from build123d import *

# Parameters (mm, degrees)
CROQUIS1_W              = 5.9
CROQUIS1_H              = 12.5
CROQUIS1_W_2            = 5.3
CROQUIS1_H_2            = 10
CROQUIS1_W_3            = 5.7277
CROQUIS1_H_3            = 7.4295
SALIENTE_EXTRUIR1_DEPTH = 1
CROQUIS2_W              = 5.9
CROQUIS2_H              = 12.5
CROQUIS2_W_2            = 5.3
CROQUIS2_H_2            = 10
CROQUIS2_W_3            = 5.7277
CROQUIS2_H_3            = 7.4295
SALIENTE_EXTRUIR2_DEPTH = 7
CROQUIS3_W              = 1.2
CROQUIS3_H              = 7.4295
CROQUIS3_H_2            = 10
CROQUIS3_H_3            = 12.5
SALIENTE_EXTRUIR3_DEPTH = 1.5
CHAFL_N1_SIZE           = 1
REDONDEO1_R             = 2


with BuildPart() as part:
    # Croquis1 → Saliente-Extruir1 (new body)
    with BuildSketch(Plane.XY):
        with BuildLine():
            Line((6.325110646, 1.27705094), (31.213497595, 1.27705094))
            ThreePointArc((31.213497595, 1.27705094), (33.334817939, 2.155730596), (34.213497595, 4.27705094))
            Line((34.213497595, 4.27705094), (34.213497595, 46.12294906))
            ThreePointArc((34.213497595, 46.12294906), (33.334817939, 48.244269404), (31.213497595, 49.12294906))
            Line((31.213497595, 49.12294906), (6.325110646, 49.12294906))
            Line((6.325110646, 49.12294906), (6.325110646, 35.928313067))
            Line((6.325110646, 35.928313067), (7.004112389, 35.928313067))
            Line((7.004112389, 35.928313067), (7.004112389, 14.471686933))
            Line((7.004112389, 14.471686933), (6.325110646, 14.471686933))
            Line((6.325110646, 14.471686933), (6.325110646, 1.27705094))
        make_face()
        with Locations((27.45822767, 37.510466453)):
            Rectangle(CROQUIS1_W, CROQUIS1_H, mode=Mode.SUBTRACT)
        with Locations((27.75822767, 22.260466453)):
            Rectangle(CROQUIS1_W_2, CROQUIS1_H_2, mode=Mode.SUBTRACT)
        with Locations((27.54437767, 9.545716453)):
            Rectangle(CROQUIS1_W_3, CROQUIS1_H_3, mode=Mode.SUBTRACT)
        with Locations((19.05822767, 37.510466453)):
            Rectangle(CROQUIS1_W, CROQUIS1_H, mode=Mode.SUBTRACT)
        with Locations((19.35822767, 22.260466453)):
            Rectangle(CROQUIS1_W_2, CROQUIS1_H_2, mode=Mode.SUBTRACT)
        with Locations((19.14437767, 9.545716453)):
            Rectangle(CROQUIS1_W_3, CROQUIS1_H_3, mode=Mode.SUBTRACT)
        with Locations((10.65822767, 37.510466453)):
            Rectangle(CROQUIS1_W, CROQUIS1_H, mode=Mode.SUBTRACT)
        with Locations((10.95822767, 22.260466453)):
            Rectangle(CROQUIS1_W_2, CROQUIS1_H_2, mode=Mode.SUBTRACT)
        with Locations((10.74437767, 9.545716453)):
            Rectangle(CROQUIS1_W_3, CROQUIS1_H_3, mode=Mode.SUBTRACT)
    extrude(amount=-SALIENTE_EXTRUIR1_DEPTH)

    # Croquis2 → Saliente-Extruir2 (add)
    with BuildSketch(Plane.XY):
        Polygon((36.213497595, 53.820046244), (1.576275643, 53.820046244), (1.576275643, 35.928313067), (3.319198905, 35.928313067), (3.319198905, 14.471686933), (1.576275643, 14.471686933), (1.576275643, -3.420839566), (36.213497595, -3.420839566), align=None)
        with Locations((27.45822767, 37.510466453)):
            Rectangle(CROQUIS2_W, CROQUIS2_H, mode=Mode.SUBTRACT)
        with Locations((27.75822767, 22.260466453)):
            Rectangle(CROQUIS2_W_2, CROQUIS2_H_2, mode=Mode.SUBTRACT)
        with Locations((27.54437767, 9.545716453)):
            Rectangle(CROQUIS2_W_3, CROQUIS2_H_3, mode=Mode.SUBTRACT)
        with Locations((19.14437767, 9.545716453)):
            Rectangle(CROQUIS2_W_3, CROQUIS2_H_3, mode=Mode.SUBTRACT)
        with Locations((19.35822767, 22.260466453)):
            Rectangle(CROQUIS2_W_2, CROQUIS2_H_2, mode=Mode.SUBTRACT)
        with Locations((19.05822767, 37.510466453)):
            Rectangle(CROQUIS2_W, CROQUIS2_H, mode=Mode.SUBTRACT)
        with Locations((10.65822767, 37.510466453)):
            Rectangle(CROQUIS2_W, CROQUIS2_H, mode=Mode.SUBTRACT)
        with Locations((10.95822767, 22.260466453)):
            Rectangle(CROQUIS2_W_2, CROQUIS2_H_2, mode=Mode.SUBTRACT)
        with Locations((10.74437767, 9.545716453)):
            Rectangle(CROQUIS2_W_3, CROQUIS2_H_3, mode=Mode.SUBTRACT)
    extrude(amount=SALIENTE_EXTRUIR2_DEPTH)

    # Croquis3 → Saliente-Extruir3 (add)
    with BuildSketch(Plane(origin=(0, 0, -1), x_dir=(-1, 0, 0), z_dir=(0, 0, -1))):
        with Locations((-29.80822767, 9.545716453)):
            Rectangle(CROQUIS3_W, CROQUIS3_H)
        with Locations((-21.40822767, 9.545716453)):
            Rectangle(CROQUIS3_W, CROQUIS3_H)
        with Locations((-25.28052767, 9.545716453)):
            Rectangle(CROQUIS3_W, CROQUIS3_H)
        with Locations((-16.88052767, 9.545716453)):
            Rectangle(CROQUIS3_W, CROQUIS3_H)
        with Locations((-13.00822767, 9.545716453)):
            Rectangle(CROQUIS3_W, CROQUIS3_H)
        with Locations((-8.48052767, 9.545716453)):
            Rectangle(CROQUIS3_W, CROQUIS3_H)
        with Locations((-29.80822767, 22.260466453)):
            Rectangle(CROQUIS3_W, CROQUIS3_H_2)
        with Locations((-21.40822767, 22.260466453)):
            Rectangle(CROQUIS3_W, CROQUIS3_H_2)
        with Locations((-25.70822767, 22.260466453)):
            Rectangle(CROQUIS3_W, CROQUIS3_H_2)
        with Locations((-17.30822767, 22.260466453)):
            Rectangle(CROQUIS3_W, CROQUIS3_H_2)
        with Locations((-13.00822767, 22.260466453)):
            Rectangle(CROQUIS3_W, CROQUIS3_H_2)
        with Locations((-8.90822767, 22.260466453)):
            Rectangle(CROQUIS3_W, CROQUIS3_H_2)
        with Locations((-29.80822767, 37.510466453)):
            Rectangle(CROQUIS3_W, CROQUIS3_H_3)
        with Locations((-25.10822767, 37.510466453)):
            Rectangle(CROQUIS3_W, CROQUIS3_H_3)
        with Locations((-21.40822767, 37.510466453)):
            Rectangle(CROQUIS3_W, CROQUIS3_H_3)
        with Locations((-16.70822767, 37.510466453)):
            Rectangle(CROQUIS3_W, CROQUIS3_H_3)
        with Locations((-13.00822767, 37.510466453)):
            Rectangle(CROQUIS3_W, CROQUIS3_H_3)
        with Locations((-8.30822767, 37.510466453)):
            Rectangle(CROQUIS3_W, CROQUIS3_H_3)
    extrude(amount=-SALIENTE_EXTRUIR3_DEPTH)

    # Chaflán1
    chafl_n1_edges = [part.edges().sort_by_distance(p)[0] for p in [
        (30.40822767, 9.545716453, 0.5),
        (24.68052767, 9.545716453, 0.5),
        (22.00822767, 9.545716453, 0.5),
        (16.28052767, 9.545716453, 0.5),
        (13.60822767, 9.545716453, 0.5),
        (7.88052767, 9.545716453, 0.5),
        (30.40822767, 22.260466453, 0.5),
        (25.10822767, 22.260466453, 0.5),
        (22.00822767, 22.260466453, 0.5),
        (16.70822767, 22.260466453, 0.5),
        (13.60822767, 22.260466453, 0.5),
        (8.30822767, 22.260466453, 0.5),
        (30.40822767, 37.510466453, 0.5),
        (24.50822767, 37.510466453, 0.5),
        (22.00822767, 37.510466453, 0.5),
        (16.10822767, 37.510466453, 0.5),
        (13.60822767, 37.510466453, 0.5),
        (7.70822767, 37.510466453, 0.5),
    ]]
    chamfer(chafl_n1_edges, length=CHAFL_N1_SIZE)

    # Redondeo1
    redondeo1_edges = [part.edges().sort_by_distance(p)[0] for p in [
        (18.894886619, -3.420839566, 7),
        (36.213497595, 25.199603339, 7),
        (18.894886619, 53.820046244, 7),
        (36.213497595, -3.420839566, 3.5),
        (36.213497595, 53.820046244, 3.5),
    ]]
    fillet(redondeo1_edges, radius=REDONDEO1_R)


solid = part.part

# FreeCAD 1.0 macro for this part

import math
import FreeCAD as App
import Part
import Sketcher
Q = App.Units.Quantity


def edges_at(feature, points):
    """Names of the edges that pass closest to the given points."""
    edges = feature.Shape.Edges
    near = lambda p: min(range(len(edges)), key=lambda i: edges[i].distToShape(Part.Vertex(*p))[0])
    return sorted({f"Edge{near(p) + 1}" for p in points})


def add_polygon(sketch, points):
    """Adds a closed chain of lines whose ends are joined by coincident constraints."""
    first, n = sketch.GeometryCount, len(points)
    for a, b in zip(points, points[1:] + points[:1]):
        sketch.addGeometry(Part.LineSegment(App.Vector(*a, 0), App.Vector(*b, 0)), False)
    for i in range(n):
        sketch.addConstraint(Sketcher.Constraint("Coincident", first + i, 2, first + (i + 1) % n, 1))

doc = App.newDocument("Part")
params = doc.addObject("Spreadsheet::Sheet", "Params")
for row, (alias, value) in enumerate([
    ("sketch1_radius", "3 mm"),
    ("sketch1_height", "10 mm"),
    ("sketch1_width", "5.3 mm"),
    ("sketch1_width2", "5.9 mm"),
    ("sketch1_height2", "12.5 mm"),
    ("pad1_length", "1 mm"),
    ("sketch2_height", "10 mm"),
    ("sketch2_width", "5.3 mm"),
    ("sketch2_width2", "5.9 mm"),
    ("sketch2_height2", "12.5 mm"),
    ("pad2_length", "7 mm"),
    ("sketch3_height", "10 mm"),
    ("sketch3_width", "1.2 mm"),
    ("sketch3_height2", "12.5 mm"),
    ("pad3_length", "1.5 mm"),
    ("chamfer_size", "1 mm"),
    ("fillet_radius", "2 mm"),
], start=1):
    params.set(f"A{row}", alias)
    params.set(f"B{row}", "=" + value)
    params.setAlias(f"B{row}", alias)

body = doc.addObject("PartDesign::Body", "Body")

# Sketch on XY plane
sketch1 = doc.addObject("Sketcher::SketchObject", "Sketch")
body.addObject(sketch1)
sketch1.AttachmentSupport = (doc.XY_Plane, [""])
sketch1.MapMode = "FlatFace"
sketch1.addGeometry(Part.LineSegment(App.Vector(6.325111, 1.277051, 0), App.Vector(31.213498, 1.277051, 0)), False)  # 0
sketch1.addGeometry(Part.ArcOfCircle(Part.Circle(App.Vector(31.213498, 4.277051, 0), App.Vector(0, 0, 1), 3), math.radians(-90), math.radians(0)), False)  # 1
sketch1.addGeometry(Part.LineSegment(App.Vector(34.213498, 4.277051, 0), App.Vector(34.213498, 46.122949, 0)), False)  # 2
sketch1.addGeometry(Part.ArcOfCircle(Part.Circle(App.Vector(31.213498, 46.122949, 0), App.Vector(0, 0, 1), 3), math.radians(0), math.radians(90)), False)  # 3
sketch1.addGeometry(Part.LineSegment(App.Vector(31.213498, 49.122949, 0), App.Vector(6.325111, 49.122949, 0)), False)  # 4
sketch1.addGeometry(Part.LineSegment(App.Vector(6.325111, 49.122949, 0), App.Vector(6.325111, 35.928313, 0)), False)  # 5
sketch1.addGeometry(Part.LineSegment(App.Vector(6.325111, 35.928313, 0), App.Vector(7.004112, 35.928313, 0)), False)  # 6
sketch1.addGeometry(Part.LineSegment(App.Vector(7.004112, 35.928313, 0), App.Vector(7.004112, 14.471687, 0)), False)  # 7
sketch1.addGeometry(Part.LineSegment(App.Vector(7.004112, 14.471687, 0), App.Vector(6.325111, 14.471687, 0)), False)  # 8
sketch1.addGeometry(Part.LineSegment(App.Vector(6.325111, 14.471687, 0), App.Vector(6.325111, 1.277051, 0)), False)  # 9
add_polygon(sketch1, [(13.608228, 5.830966), (7.880528, 5.830966), (7.880528, 13.260466), (13.608228, 13.260466)])  # lines 10-13
add_polygon(sketch1, [(13.608228, 17.260466), (8.308228, 17.260466), (8.308228, 27.260466), (13.608228, 27.260466)])  # lines 14-17
add_polygon(sketch1, [(22.008228, 5.830966), (16.280528, 5.830966), (16.280528, 13.260466), (22.008228, 13.260466)])  # lines 18-21
add_polygon(sketch1, [(30.408228, 5.830966), (24.680528, 5.830966), (24.680528, 13.260466), (30.408228, 13.260466)])  # lines 22-25
add_polygon(sketch1, [(22.008228, 17.260466), (16.708228, 17.260466), (16.708228, 27.260466), (22.008228, 27.260466)])  # lines 26-29
add_polygon(sketch1, [(30.408228, 17.260466), (25.108228, 17.260466), (25.108228, 27.260466), (30.408228, 27.260466)])  # lines 30-33
add_polygon(sketch1, [(13.608228, 31.260466), (7.708228, 31.260466), (7.708228, 43.760466), (13.608228, 43.760466)])  # lines 34-37
add_polygon(sketch1, [(22.008228, 31.260466), (16.108228, 31.260466), (16.108228, 43.760466), (22.008228, 43.760466)])  # lines 38-41
add_polygon(sketch1, [(30.408228, 31.260466), (24.508228, 31.260466), (24.508228, 43.760466), (30.408228, 43.760466)])  # lines 42-45
sketch1.addConstraint([
    Sketcher.Constraint("Tangent", 0, 2, 1, 1),
    Sketcher.Constraint("Tangent", 1, 2, 2, 1),
    Sketcher.Constraint("Tangent", 2, 2, 3, 1),
    Sketcher.Constraint("Tangent", 3, 2, 4, 1),
    Sketcher.Constraint("Coincident", 4, 2, 5, 1),
    Sketcher.Constraint("Coincident", 5, 2, 6, 1),
    Sketcher.Constraint("Coincident", 6, 2, 7, 1),
    Sketcher.Constraint("Coincident", 7, 2, 8, 1),
    Sketcher.Constraint("Coincident", 8, 2, 9, 1),
    Sketcher.Constraint("Coincident", 9, 2, 0, 1),
    Sketcher.Constraint("Horizontal", 0),
    Sketcher.Constraint("Vertical", 2),
    Sketcher.Constraint("Horizontal", 4),
    Sketcher.Constraint("Vertical", 5),
    Sketcher.Constraint("Horizontal", 6),
    Sketcher.Constraint("Vertical", 7),
    Sketcher.Constraint("Horizontal", 8),
    Sketcher.Constraint("Vertical", 9),
    Sketcher.Constraint("Horizontal", 10),
    Sketcher.Constraint("Vertical", 11),
    Sketcher.Constraint("Horizontal", 12),
    Sketcher.Constraint("Vertical", 13),
    Sketcher.Constraint("Horizontal", 14),
    Sketcher.Constraint("Vertical", 15),
    Sketcher.Constraint("Horizontal", 16),
    Sketcher.Constraint("Vertical", 17),
    Sketcher.Constraint("Horizontal", 18),
    Sketcher.Constraint("Vertical", 19),
    Sketcher.Constraint("Horizontal", 20),
    Sketcher.Constraint("Vertical", 21),
    Sketcher.Constraint("Horizontal", 22),
    Sketcher.Constraint("Vertical", 23),
    Sketcher.Constraint("Horizontal", 24),
    Sketcher.Constraint("Vertical", 25),
    Sketcher.Constraint("Horizontal", 26),
    Sketcher.Constraint("Vertical", 27),
    Sketcher.Constraint("Horizontal", 28),
    Sketcher.Constraint("Vertical", 29),
    Sketcher.Constraint("Horizontal", 30),
    Sketcher.Constraint("Vertical", 31),
    Sketcher.Constraint("Horizontal", 32),
    Sketcher.Constraint("Vertical", 33),
    Sketcher.Constraint("Horizontal", 34),
    Sketcher.Constraint("Vertical", 35),
    Sketcher.Constraint("Horizontal", 36),
    Sketcher.Constraint("Vertical", 37),
    Sketcher.Constraint("Horizontal", 38),
    Sketcher.Constraint("Vertical", 39),
    Sketcher.Constraint("Horizontal", 40),
    Sketcher.Constraint("Vertical", 41),
    Sketcher.Constraint("Horizontal", 42),
    Sketcher.Constraint("Vertical", 43),
    Sketcher.Constraint("Horizontal", 44),
    Sketcher.Constraint("Vertical", 45),
    Sketcher.Constraint("Equal", 1, 3),
    Sketcher.Constraint("Horizontal", 13, 2, 18, 2),
    Sketcher.Constraint("Horizontal", 12, 2, 19, 2),
    Sketcher.Constraint("Horizontal", 21, 2, 22, 2),
    Sketcher.Constraint("Horizontal", 20, 2, 23, 2),
    Sketcher.Constraint("Horizontal", 17, 2, 26, 2),
    Sketcher.Constraint("Horizontal", 16, 2, 27, 2),
    Sketcher.Constraint("Horizontal", 29, 2, 30, 2),
    Sketcher.Constraint("Horizontal", 28, 2, 31, 2),
    Sketcher.Constraint("Horizontal", 37, 2, 38, 2),
    Sketcher.Constraint("Horizontal", 36, 2, 39, 2),
    Sketcher.Constraint("Horizontal", 41, 2, 42, 2),
    Sketcher.Constraint("Horizontal", 40, 2, 43, 2),
    Sketcher.Constraint("Vertical", 5, 2, 8, 2),
    Sketcher.Constraint("Vertical", 13, 2, 16, 2),
    Sketcher.Constraint("Vertical", 21, 2, 28, 2),
    Sketcher.Constraint("Vertical", 25, 2, 32, 2),
    Sketcher.Constraint("Vertical", 17, 2, 36, 2),
    Sketcher.Constraint("Vertical", 29, 2, 40, 2),
    Sketcher.Constraint("Vertical", 33, 2, 44, 2),
    Sketcher.Constraint("Equal", 12, 18),
    Sketcher.Constraint("Equal", 20, 22),
    Sketcher.Constraint("Equal", 16, 26),
    Sketcher.Constraint("Equal", 28, 30),
    Sketcher.Constraint("Equal", 36, 38),
    Sketcher.Constraint("Equal", 40, 42),
    Sketcher.Constraint("Equal", 5, 9),
    Sketcher.Constraint("Radius", 1, Q("3 mm")),
    Sketcher.Constraint("DistanceY", 15, 1, 15, 2, Q("10 mm")),
    Sketcher.Constraint("DistanceX", 14, 2, 14, 1, Q("5.3 mm")),
    Sketcher.Constraint("DistanceX", 34, 2, 34, 1, Q("5.9 mm")),
    Sketcher.Constraint("DistanceY", 35, 1, 35, 2, Q("12.5 mm")),
    Sketcher.Constraint("DistanceY", 11, 2, 14, 2, Q("4 mm")),
    Sketcher.Constraint("DistanceY", 15, 2, 34, 2, Q("4 mm")),
    Sketcher.Constraint("DistanceX", 34, 2, 27, 2, Q("9 mm")),
    Sketcher.Constraint("DistanceX", 18, 2, 22, 2, Q("8.4 mm")),
    Sketcher.Constraint("DistanceX", 6, 1, 6, 2, Q("0.679002 mm")),
    Sketcher.Constraint("DistanceX", 10, 2, 10, 1, Q("5.7277 mm")),
    Sketcher.Constraint("DistanceY", 2, 1, 2, 2, Q("41.845898 mm")),
    Sketcher.Constraint("DistanceY", 11, 1, 11, 2, Q("7.4295 mm")),
    Sketcher.Constraint("DistanceX", 0, 1, 0, 2, Q("24.888387 mm")),
    Sketcher.Constraint("DistanceY", 5, 2, 5, 1, Q("13.194636 mm")),
    Sketcher.Constraint("DistanceY", -1, 1, 1, 3, Q("4.277051 mm")),
    Sketcher.Constraint("DistanceX", -1, 1, 4, 2, Q("6.325111 mm")),
    Sketcher.Constraint("DistanceY", 10, 2, 7, 2, Q("8.64072 mm")),
    Sketcher.Constraint("DistanceX", 10, 2, 1, 3, Q("23.33297 mm")),
])
sketch1.setExpression("Constraints[117]", "Params.sketch1_radius")
sketch1.setExpression("Constraints[118]", "Params.sketch1_height")
sketch1.setExpression("Constraints[119]", "Params.sketch1_width")
sketch1.setExpression("Constraints[120]", "Params.sketch1_width2")
sketch1.setExpression("Constraints[121]", "Params.sketch1_height2")
pad1 = doc.addObject("PartDesign::Pad", "Pad")
body.addObject(pad1)
pad1.Profile = sketch1
pad1.setExpression("Length", "Params.pad1_length")
pad1.Reversed = True

# Sketch on XY plane
sketch2 = doc.addObject("Sketcher::SketchObject", "Sketch001")
body.addObject(sketch2)
sketch2.AttachmentSupport = (doc.XY_Plane, [""])
sketch2.MapMode = "FlatFace"
add_polygon(sketch2, [(36.213498, 53.820046), (1.576276, 53.820046), (1.576276, 35.928313), (3.319199, 35.928313), (3.319199, 14.471687), (1.576276, 14.471687), (1.576276, -3.42084), (36.213498, -3.42084)])  # lines 0-7
add_polygon(sketch2, [(13.608228, 5.830966), (7.880528, 5.830966), (7.880528, 13.260466), (13.608228, 13.260466)])  # lines 8-11
add_polygon(sketch2, [(13.608228, 17.260466), (8.308228, 17.260466), (8.308228, 27.260466), (13.608228, 27.260466)])  # lines 12-15
add_polygon(sketch2, [(22.008228, 5.830966), (16.280528, 5.830966), (16.280528, 13.260466), (22.008228, 13.260466)])  # lines 16-19
add_polygon(sketch2, [(30.408228, 5.830966), (24.680528, 5.830966), (24.680528, 13.260466), (30.408228, 13.260466)])  # lines 20-23
add_polygon(sketch2, [(22.008228, 17.260466), (16.708228, 17.260466), (16.708228, 27.260466), (22.008228, 27.260466)])  # lines 24-27
add_polygon(sketch2, [(30.408228, 17.260466), (25.108228, 17.260466), (25.108228, 27.260466), (30.408228, 27.260466)])  # lines 28-31
add_polygon(sketch2, [(13.608228, 31.260466), (7.708228, 31.260466), (7.708228, 43.760466), (13.608228, 43.760466)])  # lines 32-35
add_polygon(sketch2, [(22.008228, 31.260466), (16.108228, 31.260466), (16.108228, 43.760466), (22.008228, 43.760466)])  # lines 36-39
add_polygon(sketch2, [(30.408228, 31.260466), (24.508228, 31.260466), (24.508228, 43.760466), (30.408228, 43.760466)])  # lines 40-43
sketch2.addConstraint([
    Sketcher.Constraint("Horizontal", 0),
    Sketcher.Constraint("Vertical", 1),
    Sketcher.Constraint("Horizontal", 2),
    Sketcher.Constraint("Vertical", 3),
    Sketcher.Constraint("Horizontal", 4),
    Sketcher.Constraint("Vertical", 5),
    Sketcher.Constraint("Horizontal", 6),
    Sketcher.Constraint("Vertical", 7),
    Sketcher.Constraint("Horizontal", 8),
    Sketcher.Constraint("Vertical", 9),
    Sketcher.Constraint("Horizontal", 10),
    Sketcher.Constraint("Vertical", 11),
    Sketcher.Constraint("Horizontal", 12),
    Sketcher.Constraint("Vertical", 13),
    Sketcher.Constraint("Horizontal", 14),
    Sketcher.Constraint("Vertical", 15),
    Sketcher.Constraint("Horizontal", 16),
    Sketcher.Constraint("Vertical", 17),
    Sketcher.Constraint("Horizontal", 18),
    Sketcher.Constraint("Vertical", 19),
    Sketcher.Constraint("Horizontal", 20),
    Sketcher.Constraint("Vertical", 21),
    Sketcher.Constraint("Horizontal", 22),
    Sketcher.Constraint("Vertical", 23),
    Sketcher.Constraint("Horizontal", 24),
    Sketcher.Constraint("Vertical", 25),
    Sketcher.Constraint("Horizontal", 26),
    Sketcher.Constraint("Vertical", 27),
    Sketcher.Constraint("Horizontal", 28),
    Sketcher.Constraint("Vertical", 29),
    Sketcher.Constraint("Horizontal", 30),
    Sketcher.Constraint("Vertical", 31),
    Sketcher.Constraint("Horizontal", 32),
    Sketcher.Constraint("Vertical", 33),
    Sketcher.Constraint("Horizontal", 34),
    Sketcher.Constraint("Vertical", 35),
    Sketcher.Constraint("Horizontal", 36),
    Sketcher.Constraint("Vertical", 37),
    Sketcher.Constraint("Horizontal", 38),
    Sketcher.Constraint("Vertical", 39),
    Sketcher.Constraint("Horizontal", 40),
    Sketcher.Constraint("Vertical", 41),
    Sketcher.Constraint("Horizontal", 42),
    Sketcher.Constraint("Vertical", 43),
    Sketcher.Constraint("Horizontal", 11, 2, 16, 2),
    Sketcher.Constraint("Horizontal", 10, 2, 17, 2),
    Sketcher.Constraint("Horizontal", 19, 2, 20, 2),
    Sketcher.Constraint("Horizontal", 18, 2, 21, 2),
    Sketcher.Constraint("Horizontal", 15, 2, 24, 2),
    Sketcher.Constraint("Horizontal", 14, 2, 25, 2),
    Sketcher.Constraint("Horizontal", 27, 2, 28, 2),
    Sketcher.Constraint("Horizontal", 26, 2, 29, 2),
    Sketcher.Constraint("Horizontal", 35, 2, 36, 2),
    Sketcher.Constraint("Horizontal", 34, 2, 37, 2),
    Sketcher.Constraint("Horizontal", 39, 2, 40, 2),
    Sketcher.Constraint("Horizontal", 38, 2, 41, 2),
    Sketcher.Constraint("Vertical", 1, 2, 4, 2),
    Sketcher.Constraint("Vertical", 11, 2, 14, 2),
    Sketcher.Constraint("Vertical", 19, 2, 26, 2),
    Sketcher.Constraint("Vertical", 23, 2, 30, 2),
    Sketcher.Constraint("Vertical", 15, 2, 34, 2),
    Sketcher.Constraint("Vertical", 27, 2, 38, 2),
    Sketcher.Constraint("Vertical", 31, 2, 42, 2),
    Sketcher.Constraint("Equal", 10, 16),
    Sketcher.Constraint("Equal", 18, 20),
    Sketcher.Constraint("Equal", 14, 24),
    Sketcher.Constraint("Equal", 26, 28),
    Sketcher.Constraint("Equal", 34, 36),
    Sketcher.Constraint("Equal", 38, 40),
    Sketcher.Constraint("DistanceY", 13, 1, 13, 2, Q("10 mm")),
    Sketcher.Constraint("DistanceX", 12, 2, 12, 1, Q("5.3 mm")),
    Sketcher.Constraint("DistanceX", 32, 2, 32, 1, Q("5.9 mm")),
    Sketcher.Constraint("DistanceY", 33, 1, 33, 2, Q("12.5 mm")),
    Sketcher.Constraint("DistanceY", 9, 2, 12, 2, Q("4 mm")),
    Sketcher.Constraint("DistanceY", 13, 2, 32, 2, Q("4 mm")),
    Sketcher.Constraint("DistanceX", 32, 2, 25, 2, Q("9 mm")),
    Sketcher.Constraint("DistanceX", 16, 2, 20, 2, Q("8.4 mm")),
    Sketcher.Constraint("DistanceX", 8, 2, 8, 1, Q("5.7277 mm")),
    Sketcher.Constraint("DistanceY", 9, 1, 9, 2, Q("7.4295 mm")),
    Sketcher.Constraint("DistanceX", 0, 2, 0, 1, Q("34.637222 mm")),
    Sketcher.Constraint("DistanceX", -1, 1, 2, 2, Q("3.319199 mm")),
    Sketcher.Constraint("DistanceX", 3, 2, 6, 2, Q("32.894299 mm")),
    Sketcher.Constraint("DistanceY", 1, 2, 1, 1, Q("17.891733 mm")),
    Sketcher.Constraint("DistanceY", 3, 2, 3, 1, Q("21.456626 mm")),
    Sketcher.Constraint("DistanceY", 5, 2, 5, 1, Q("17.892526 mm")),
    Sketcher.Constraint("DistanceY", 5, 2, -1, 1, Q("3.42084 mm")),
    Sketcher.Constraint("DistanceX", 3, 2, 8, 2, Q("4.561329 mm")),
    Sketcher.Constraint("DistanceY", 8, 2, 3, 2, Q("8.64072 mm")),
])
sketch2.setExpression("Constraints[113]", "Params.sketch2_height")
sketch2.setExpression("Constraints[114]", "Params.sketch2_width")
sketch2.setExpression("Constraints[115]", "Params.sketch2_width2")
sketch2.setExpression("Constraints[116]", "Params.sketch2_height2")
pad2 = doc.addObject("PartDesign::Pad", "Pad001")
body.addObject(pad2)
pad2.Profile = sketch2
pad2.setExpression("Length", "Params.pad2_length")

# Sketch on XY plane
sketch3 = doc.addObject("Sketcher::SketchObject", "Sketch002")
body.addObject(sketch3)
sketch3.AttachmentSupport = (doc.XY_Plane, [""])
sketch3.MapMode = "FlatFace"
sketch3.AttachmentOffset = App.Placement(App.Vector(0, 0, -1), App.Rotation())
add_polygon(sketch3, [(30.408228, 13.260466), (30.408228, 5.830966), (29.208228, 5.830966), (29.208228, 13.260466)])  # lines 0-3
add_polygon(sketch3, [(22.008228, 13.260466), (22.008228, 5.830966), (20.808228, 5.830966), (20.808228, 13.260466)])  # lines 4-7
add_polygon(sketch3, [(25.880528, 13.260466), (25.880528, 5.830966), (24.680528, 5.830966), (24.680528, 13.260466)])  # lines 8-11
add_polygon(sketch3, [(17.480528, 13.260466), (17.480528, 5.830966), (16.280528, 5.830966), (16.280528, 13.260466)])  # lines 12-15
add_polygon(sketch3, [(13.608228, 13.260466), (13.608228, 5.830966), (12.408228, 5.830966), (12.408228, 13.260466)])  # lines 16-19
add_polygon(sketch3, [(9.080528, 13.260466), (9.080528, 5.830966), (7.880528, 5.830966), (7.880528, 13.260466)])  # lines 20-23
add_polygon(sketch3, [(30.408228, 27.260466), (30.408228, 17.260466), (29.208228, 17.260466), (29.208228, 27.260466)])  # lines 24-27
add_polygon(sketch3, [(22.008228, 27.260466), (22.008228, 17.260466), (20.808228, 17.260466), (20.808228, 27.260466)])  # lines 28-31
add_polygon(sketch3, [(26.308228, 27.260466), (26.308228, 17.260466), (25.108228, 17.260466), (25.108228, 27.260466)])  # lines 32-35
add_polygon(sketch3, [(17.908228, 27.260466), (17.908228, 17.260466), (16.708228, 17.260466), (16.708228, 27.260466)])  # lines 36-39
add_polygon(sketch3, [(13.608228, 27.260466), (13.608228, 17.260466), (12.408228, 17.260466), (12.408228, 27.260466)])  # lines 40-43
add_polygon(sketch3, [(9.508228, 27.260466), (9.508228, 17.260466), (8.308228, 17.260466), (8.308228, 27.260466)])  # lines 44-47
add_polygon(sketch3, [(30.408228, 43.760466), (30.408228, 31.260466), (29.208228, 31.260466), (29.208228, 43.760466)])  # lines 48-51
add_polygon(sketch3, [(25.708228, 43.760466), (25.708228, 31.260466), (24.508228, 31.260466), (24.508228, 43.760466)])  # lines 52-55
add_polygon(sketch3, [(22.008228, 43.760466), (22.008228, 31.260466), (20.808228, 31.260466), (20.808228, 43.760466)])  # lines 56-59
add_polygon(sketch3, [(17.308228, 43.760466), (17.308228, 31.260466), (16.108228, 31.260466), (16.108228, 43.760466)])  # lines 60-63
add_polygon(sketch3, [(13.608228, 43.760466), (13.608228, 31.260466), (12.408228, 31.260466), (12.408228, 43.760466)])  # lines 64-67
add_polygon(sketch3, [(8.908228, 43.760466), (8.908228, 31.260466), (7.708228, 31.260466), (7.708228, 43.760466)])  # lines 68-71
sketch3.addConstraint([
    Sketcher.Constraint("Vertical", 0),
    Sketcher.Constraint("Horizontal", 1),
    Sketcher.Constraint("Vertical", 2),
    Sketcher.Constraint("Horizontal", 3),
    Sketcher.Constraint("Vertical", 4),
    Sketcher.Constraint("Horizontal", 5),
    Sketcher.Constraint("Vertical", 6),
    Sketcher.Constraint("Horizontal", 7),
    Sketcher.Constraint("Vertical", 8),
    Sketcher.Constraint("Horizontal", 9),
    Sketcher.Constraint("Vertical", 10),
    Sketcher.Constraint("Horizontal", 11),
    Sketcher.Constraint("Vertical", 12),
    Sketcher.Constraint("Horizontal", 13),
    Sketcher.Constraint("Vertical", 14),
    Sketcher.Constraint("Horizontal", 15),
    Sketcher.Constraint("Vertical", 16),
    Sketcher.Constraint("Horizontal", 17),
    Sketcher.Constraint("Vertical", 18),
    Sketcher.Constraint("Horizontal", 19),
    Sketcher.Constraint("Vertical", 20),
    Sketcher.Constraint("Horizontal", 21),
    Sketcher.Constraint("Vertical", 22),
    Sketcher.Constraint("Horizontal", 23),
    Sketcher.Constraint("Vertical", 24),
    Sketcher.Constraint("Horizontal", 25),
    Sketcher.Constraint("Vertical", 26),
    Sketcher.Constraint("Horizontal", 27),
    Sketcher.Constraint("Vertical", 28),
    Sketcher.Constraint("Horizontal", 29),
    Sketcher.Constraint("Vertical", 30),
    Sketcher.Constraint("Horizontal", 31),
    Sketcher.Constraint("Vertical", 32),
    Sketcher.Constraint("Horizontal", 33),
    Sketcher.Constraint("Vertical", 34),
    Sketcher.Constraint("Horizontal", 35),
    Sketcher.Constraint("Vertical", 36),
    Sketcher.Constraint("Horizontal", 37),
    Sketcher.Constraint("Vertical", 38),
    Sketcher.Constraint("Horizontal", 39),
    Sketcher.Constraint("Vertical", 40),
    Sketcher.Constraint("Horizontal", 41),
    Sketcher.Constraint("Vertical", 42),
    Sketcher.Constraint("Horizontal", 43),
    Sketcher.Constraint("Vertical", 44),
    Sketcher.Constraint("Horizontal", 45),
    Sketcher.Constraint("Vertical", 46),
    Sketcher.Constraint("Horizontal", 47),
    Sketcher.Constraint("Vertical", 48),
    Sketcher.Constraint("Horizontal", 49),
    Sketcher.Constraint("Vertical", 50),
    Sketcher.Constraint("Horizontal", 51),
    Sketcher.Constraint("Vertical", 52),
    Sketcher.Constraint("Horizontal", 53),
    Sketcher.Constraint("Vertical", 54),
    Sketcher.Constraint("Horizontal", 55),
    Sketcher.Constraint("Vertical", 56),
    Sketcher.Constraint("Horizontal", 57),
    Sketcher.Constraint("Vertical", 58),
    Sketcher.Constraint("Horizontal", 59),
    Sketcher.Constraint("Vertical", 60),
    Sketcher.Constraint("Horizontal", 61),
    Sketcher.Constraint("Vertical", 62),
    Sketcher.Constraint("Horizontal", 63),
    Sketcher.Constraint("Vertical", 64),
    Sketcher.Constraint("Horizontal", 65),
    Sketcher.Constraint("Vertical", 66),
    Sketcher.Constraint("Horizontal", 67),
    Sketcher.Constraint("Vertical", 68),
    Sketcher.Constraint("Horizontal", 69),
    Sketcher.Constraint("Vertical", 70),
    Sketcher.Constraint("Horizontal", 71),
    Sketcher.Constraint("Horizontal", 1, 2, 4, 2),
    Sketcher.Constraint("Horizontal", 3, 2, 6, 2),
    Sketcher.Constraint("Horizontal", 5, 2, 8, 2),
    Sketcher.Constraint("Horizontal", 7, 2, 10, 2),
    Sketcher.Constraint("Horizontal", 9, 2, 12, 2),
    Sketcher.Constraint("Horizontal", 11, 2, 14, 2),
    Sketcher.Constraint("Horizontal", 13, 2, 16, 2),
    Sketcher.Constraint("Horizontal", 15, 2, 18, 2),
    Sketcher.Constraint("Horizontal", 17, 2, 20, 2),
    Sketcher.Constraint("Horizontal", 19, 2, 22, 2),
    Sketcher.Constraint("Horizontal", 25, 2, 28, 2),
    Sketcher.Constraint("Horizontal", 27, 2, 30, 2),
    Sketcher.Constraint("Horizontal", 29, 2, 32, 2),
    Sketcher.Constraint("Horizontal", 31, 2, 34, 2),
    Sketcher.Constraint("Horizontal", 33, 2, 36, 2),
    Sketcher.Constraint("Horizontal", 35, 2, 38, 2),
    Sketcher.Constraint("Horizontal", 37, 2, 40, 2),
    Sketcher.Constraint("Horizontal", 39, 2, 42, 2),
    Sketcher.Constraint("Horizontal", 41, 2, 44, 2),
    Sketcher.Constraint("Horizontal", 43, 2, 46, 2),
    Sketcher.Constraint("Horizontal", 49, 2, 52, 2),
    Sketcher.Constraint("Horizontal", 51, 2, 54, 2),
    Sketcher.Constraint("Horizontal", 53, 2, 56, 2),
    Sketcher.Constraint("Horizontal", 55, 2, 58, 2),
    Sketcher.Constraint("Horizontal", 57, 2, 60, 2),
    Sketcher.Constraint("Horizontal", 59, 2, 62, 2),
    Sketcher.Constraint("Horizontal", 61, 2, 64, 2),
    Sketcher.Constraint("Horizontal", 63, 2, 66, 2),
    Sketcher.Constraint("Horizontal", 65, 2, 68, 2),
    Sketcher.Constraint("Horizontal", 67, 2, 70, 2),
    Sketcher.Constraint("Vertical", 3, 2, 24, 2),
    Sketcher.Constraint("Vertical", 2, 2, 25, 2),
    Sketcher.Constraint("Vertical", 7, 2, 28, 2),
    Sketcher.Constraint("Vertical", 6, 2, 29, 2),
    Sketcher.Constraint("Vertical", 19, 2, 40, 2),
    Sketcher.Constraint("Vertical", 18, 2, 41, 2),
    Sketcher.Constraint("Vertical", 27, 2, 48, 2),
    Sketcher.Constraint("Vertical", 26, 2, 49, 2),
    Sketcher.Constraint("Vertical", 31, 2, 56, 2),
    Sketcher.Constraint("Vertical", 30, 2, 57, 2),
    Sketcher.Constraint("Vertical", 43, 2, 64, 2),
    Sketcher.Constraint("Vertical", 42, 2, 65, 2),
    Sketcher.Constraint("Equal", 3, 5),
    Sketcher.Constraint("Equal", 7, 9),
    Sketcher.Constraint("Equal", 11, 13),
    Sketcher.Constraint("Equal", 15, 17),
    Sketcher.Constraint("Equal", 19, 21),
    Sketcher.Constraint("Equal", 31, 33),
    Sketcher.Constraint("Equal", 35, 37),
    Sketcher.Constraint("Equal", 43, 45),
    Sketcher.Constraint("Equal", 51, 53),
    Sketcher.Constraint("Equal", 59, 61),
    Sketcher.Constraint("Equal", 67, 69),
    Sketcher.Constraint("DistanceY", 24, 2, 24, 1, Q("10 mm")),
    Sketcher.Constraint("DistanceX", 1, 2, 1, 1, Q("1.2 mm")),
    Sketcher.Constraint("DistanceY", 48, 2, 48, 1, Q("12.5 mm")),
    Sketcher.Constraint("DistanceY", 0, 2, 0, 1, Q("7.4295 mm")),
    Sketcher.Constraint("DistanceX", -1, 1, 0, 2, Q("30.408228 mm")),
    Sketcher.Constraint("DistanceY", -1, 1, 0, 2, Q("5.830966 mm")),
    Sketcher.Constraint("DistanceX", -1, 1, 4, 2, Q("22.008228 mm")),
    Sketcher.Constraint("DistanceX", -1, 1, 8, 2, Q("25.880528 mm")),
    Sketcher.Constraint("DistanceX", -1, 1, 12, 2, Q("17.480528 mm")),
    Sketcher.Constraint("DistanceX", -1, 1, 16, 2, Q("13.608228 mm")),
    Sketcher.Constraint("DistanceX", -1, 1, 20, 2, Q("9.080528 mm")),
    Sketcher.Constraint("DistanceY", -1, 1, 24, 2, Q("17.260466 mm")),
    Sketcher.Constraint("DistanceX", -1, 1, 32, 2, Q("26.308228 mm")),
    Sketcher.Constraint("DistanceX", -1, 1, 36, 2, Q("17.908228 mm")),
    Sketcher.Constraint("DistanceX", -1, 1, 44, 2, Q("9.508228 mm")),
    Sketcher.Constraint("DistanceY", -1, 1, 48, 2, Q("31.260466 mm")),
    Sketcher.Constraint("DistanceX", -1, 1, 52, 2, Q("25.708228 mm")),
    Sketcher.Constraint("DistanceX", -1, 1, 60, 2, Q("17.308228 mm")),
    Sketcher.Constraint("DistanceX", -1, 1, 68, 2, Q("8.908228 mm")),
])
sketch3.setExpression("Constraints[197]", "Params.sketch3_height")
sketch3.setExpression("Constraints[198]", "Params.sketch3_width")
sketch3.setExpression("Constraints[199]", "Params.sketch3_height2")
pad3 = doc.addObject("PartDesign::Pad", "Pad002")
body.addObject(pad3)
pad3.Profile = sketch3
pad3.setExpression("Length", "Params.pad3_length")
doc.recompute()

chamfer = doc.addObject("PartDesign::Chamfer", "Chamfer")
body.addObject(chamfer)
chamfer.Base = (pad3, edges_at(pad3, [
    (30.408, 9.546, 0.5),
    (24.681, 9.546, 0.5),
    (22.008, 9.546, 0.5),
    (16.281, 9.546, 0.5),
    (13.608, 9.546, 0.5),
    (7.881, 9.546, 0.5),
    (30.408, 22.26, 0.5),
    (25.108, 22.26, 0.5),
    (22.008, 22.26, 0.5),
    (16.708, 22.26, 0.5),
    (13.608, 22.26, 0.5),
    (8.308, 22.26, 0.5),
    (30.408, 37.51, 0.5),
    (24.508, 37.51, 0.5),
    (22.008, 37.51, 0.5),
    (16.108, 37.51, 0.5),
    (13.608, 37.51, 0.5),
    (7.708, 37.51, 0.5),
]))
chamfer.setExpression("Size", "Params.chamfer_size")
doc.recompute()

fillet = doc.addObject("PartDesign::Fillet", "Fillet")
body.addObject(fillet)
fillet.Base = (chamfer, edges_at(chamfer, [
    (18.895, -3.421, 7),
    (36.213, 25.2, 7),
    (18.895, 53.82, 7),
    (36.213, -3.421, 3.5),
    (36.213, 53.82, 3.5),
]))
fillet.setExpression("Radius", "Params.fillet_radius")

doc.recompute()
